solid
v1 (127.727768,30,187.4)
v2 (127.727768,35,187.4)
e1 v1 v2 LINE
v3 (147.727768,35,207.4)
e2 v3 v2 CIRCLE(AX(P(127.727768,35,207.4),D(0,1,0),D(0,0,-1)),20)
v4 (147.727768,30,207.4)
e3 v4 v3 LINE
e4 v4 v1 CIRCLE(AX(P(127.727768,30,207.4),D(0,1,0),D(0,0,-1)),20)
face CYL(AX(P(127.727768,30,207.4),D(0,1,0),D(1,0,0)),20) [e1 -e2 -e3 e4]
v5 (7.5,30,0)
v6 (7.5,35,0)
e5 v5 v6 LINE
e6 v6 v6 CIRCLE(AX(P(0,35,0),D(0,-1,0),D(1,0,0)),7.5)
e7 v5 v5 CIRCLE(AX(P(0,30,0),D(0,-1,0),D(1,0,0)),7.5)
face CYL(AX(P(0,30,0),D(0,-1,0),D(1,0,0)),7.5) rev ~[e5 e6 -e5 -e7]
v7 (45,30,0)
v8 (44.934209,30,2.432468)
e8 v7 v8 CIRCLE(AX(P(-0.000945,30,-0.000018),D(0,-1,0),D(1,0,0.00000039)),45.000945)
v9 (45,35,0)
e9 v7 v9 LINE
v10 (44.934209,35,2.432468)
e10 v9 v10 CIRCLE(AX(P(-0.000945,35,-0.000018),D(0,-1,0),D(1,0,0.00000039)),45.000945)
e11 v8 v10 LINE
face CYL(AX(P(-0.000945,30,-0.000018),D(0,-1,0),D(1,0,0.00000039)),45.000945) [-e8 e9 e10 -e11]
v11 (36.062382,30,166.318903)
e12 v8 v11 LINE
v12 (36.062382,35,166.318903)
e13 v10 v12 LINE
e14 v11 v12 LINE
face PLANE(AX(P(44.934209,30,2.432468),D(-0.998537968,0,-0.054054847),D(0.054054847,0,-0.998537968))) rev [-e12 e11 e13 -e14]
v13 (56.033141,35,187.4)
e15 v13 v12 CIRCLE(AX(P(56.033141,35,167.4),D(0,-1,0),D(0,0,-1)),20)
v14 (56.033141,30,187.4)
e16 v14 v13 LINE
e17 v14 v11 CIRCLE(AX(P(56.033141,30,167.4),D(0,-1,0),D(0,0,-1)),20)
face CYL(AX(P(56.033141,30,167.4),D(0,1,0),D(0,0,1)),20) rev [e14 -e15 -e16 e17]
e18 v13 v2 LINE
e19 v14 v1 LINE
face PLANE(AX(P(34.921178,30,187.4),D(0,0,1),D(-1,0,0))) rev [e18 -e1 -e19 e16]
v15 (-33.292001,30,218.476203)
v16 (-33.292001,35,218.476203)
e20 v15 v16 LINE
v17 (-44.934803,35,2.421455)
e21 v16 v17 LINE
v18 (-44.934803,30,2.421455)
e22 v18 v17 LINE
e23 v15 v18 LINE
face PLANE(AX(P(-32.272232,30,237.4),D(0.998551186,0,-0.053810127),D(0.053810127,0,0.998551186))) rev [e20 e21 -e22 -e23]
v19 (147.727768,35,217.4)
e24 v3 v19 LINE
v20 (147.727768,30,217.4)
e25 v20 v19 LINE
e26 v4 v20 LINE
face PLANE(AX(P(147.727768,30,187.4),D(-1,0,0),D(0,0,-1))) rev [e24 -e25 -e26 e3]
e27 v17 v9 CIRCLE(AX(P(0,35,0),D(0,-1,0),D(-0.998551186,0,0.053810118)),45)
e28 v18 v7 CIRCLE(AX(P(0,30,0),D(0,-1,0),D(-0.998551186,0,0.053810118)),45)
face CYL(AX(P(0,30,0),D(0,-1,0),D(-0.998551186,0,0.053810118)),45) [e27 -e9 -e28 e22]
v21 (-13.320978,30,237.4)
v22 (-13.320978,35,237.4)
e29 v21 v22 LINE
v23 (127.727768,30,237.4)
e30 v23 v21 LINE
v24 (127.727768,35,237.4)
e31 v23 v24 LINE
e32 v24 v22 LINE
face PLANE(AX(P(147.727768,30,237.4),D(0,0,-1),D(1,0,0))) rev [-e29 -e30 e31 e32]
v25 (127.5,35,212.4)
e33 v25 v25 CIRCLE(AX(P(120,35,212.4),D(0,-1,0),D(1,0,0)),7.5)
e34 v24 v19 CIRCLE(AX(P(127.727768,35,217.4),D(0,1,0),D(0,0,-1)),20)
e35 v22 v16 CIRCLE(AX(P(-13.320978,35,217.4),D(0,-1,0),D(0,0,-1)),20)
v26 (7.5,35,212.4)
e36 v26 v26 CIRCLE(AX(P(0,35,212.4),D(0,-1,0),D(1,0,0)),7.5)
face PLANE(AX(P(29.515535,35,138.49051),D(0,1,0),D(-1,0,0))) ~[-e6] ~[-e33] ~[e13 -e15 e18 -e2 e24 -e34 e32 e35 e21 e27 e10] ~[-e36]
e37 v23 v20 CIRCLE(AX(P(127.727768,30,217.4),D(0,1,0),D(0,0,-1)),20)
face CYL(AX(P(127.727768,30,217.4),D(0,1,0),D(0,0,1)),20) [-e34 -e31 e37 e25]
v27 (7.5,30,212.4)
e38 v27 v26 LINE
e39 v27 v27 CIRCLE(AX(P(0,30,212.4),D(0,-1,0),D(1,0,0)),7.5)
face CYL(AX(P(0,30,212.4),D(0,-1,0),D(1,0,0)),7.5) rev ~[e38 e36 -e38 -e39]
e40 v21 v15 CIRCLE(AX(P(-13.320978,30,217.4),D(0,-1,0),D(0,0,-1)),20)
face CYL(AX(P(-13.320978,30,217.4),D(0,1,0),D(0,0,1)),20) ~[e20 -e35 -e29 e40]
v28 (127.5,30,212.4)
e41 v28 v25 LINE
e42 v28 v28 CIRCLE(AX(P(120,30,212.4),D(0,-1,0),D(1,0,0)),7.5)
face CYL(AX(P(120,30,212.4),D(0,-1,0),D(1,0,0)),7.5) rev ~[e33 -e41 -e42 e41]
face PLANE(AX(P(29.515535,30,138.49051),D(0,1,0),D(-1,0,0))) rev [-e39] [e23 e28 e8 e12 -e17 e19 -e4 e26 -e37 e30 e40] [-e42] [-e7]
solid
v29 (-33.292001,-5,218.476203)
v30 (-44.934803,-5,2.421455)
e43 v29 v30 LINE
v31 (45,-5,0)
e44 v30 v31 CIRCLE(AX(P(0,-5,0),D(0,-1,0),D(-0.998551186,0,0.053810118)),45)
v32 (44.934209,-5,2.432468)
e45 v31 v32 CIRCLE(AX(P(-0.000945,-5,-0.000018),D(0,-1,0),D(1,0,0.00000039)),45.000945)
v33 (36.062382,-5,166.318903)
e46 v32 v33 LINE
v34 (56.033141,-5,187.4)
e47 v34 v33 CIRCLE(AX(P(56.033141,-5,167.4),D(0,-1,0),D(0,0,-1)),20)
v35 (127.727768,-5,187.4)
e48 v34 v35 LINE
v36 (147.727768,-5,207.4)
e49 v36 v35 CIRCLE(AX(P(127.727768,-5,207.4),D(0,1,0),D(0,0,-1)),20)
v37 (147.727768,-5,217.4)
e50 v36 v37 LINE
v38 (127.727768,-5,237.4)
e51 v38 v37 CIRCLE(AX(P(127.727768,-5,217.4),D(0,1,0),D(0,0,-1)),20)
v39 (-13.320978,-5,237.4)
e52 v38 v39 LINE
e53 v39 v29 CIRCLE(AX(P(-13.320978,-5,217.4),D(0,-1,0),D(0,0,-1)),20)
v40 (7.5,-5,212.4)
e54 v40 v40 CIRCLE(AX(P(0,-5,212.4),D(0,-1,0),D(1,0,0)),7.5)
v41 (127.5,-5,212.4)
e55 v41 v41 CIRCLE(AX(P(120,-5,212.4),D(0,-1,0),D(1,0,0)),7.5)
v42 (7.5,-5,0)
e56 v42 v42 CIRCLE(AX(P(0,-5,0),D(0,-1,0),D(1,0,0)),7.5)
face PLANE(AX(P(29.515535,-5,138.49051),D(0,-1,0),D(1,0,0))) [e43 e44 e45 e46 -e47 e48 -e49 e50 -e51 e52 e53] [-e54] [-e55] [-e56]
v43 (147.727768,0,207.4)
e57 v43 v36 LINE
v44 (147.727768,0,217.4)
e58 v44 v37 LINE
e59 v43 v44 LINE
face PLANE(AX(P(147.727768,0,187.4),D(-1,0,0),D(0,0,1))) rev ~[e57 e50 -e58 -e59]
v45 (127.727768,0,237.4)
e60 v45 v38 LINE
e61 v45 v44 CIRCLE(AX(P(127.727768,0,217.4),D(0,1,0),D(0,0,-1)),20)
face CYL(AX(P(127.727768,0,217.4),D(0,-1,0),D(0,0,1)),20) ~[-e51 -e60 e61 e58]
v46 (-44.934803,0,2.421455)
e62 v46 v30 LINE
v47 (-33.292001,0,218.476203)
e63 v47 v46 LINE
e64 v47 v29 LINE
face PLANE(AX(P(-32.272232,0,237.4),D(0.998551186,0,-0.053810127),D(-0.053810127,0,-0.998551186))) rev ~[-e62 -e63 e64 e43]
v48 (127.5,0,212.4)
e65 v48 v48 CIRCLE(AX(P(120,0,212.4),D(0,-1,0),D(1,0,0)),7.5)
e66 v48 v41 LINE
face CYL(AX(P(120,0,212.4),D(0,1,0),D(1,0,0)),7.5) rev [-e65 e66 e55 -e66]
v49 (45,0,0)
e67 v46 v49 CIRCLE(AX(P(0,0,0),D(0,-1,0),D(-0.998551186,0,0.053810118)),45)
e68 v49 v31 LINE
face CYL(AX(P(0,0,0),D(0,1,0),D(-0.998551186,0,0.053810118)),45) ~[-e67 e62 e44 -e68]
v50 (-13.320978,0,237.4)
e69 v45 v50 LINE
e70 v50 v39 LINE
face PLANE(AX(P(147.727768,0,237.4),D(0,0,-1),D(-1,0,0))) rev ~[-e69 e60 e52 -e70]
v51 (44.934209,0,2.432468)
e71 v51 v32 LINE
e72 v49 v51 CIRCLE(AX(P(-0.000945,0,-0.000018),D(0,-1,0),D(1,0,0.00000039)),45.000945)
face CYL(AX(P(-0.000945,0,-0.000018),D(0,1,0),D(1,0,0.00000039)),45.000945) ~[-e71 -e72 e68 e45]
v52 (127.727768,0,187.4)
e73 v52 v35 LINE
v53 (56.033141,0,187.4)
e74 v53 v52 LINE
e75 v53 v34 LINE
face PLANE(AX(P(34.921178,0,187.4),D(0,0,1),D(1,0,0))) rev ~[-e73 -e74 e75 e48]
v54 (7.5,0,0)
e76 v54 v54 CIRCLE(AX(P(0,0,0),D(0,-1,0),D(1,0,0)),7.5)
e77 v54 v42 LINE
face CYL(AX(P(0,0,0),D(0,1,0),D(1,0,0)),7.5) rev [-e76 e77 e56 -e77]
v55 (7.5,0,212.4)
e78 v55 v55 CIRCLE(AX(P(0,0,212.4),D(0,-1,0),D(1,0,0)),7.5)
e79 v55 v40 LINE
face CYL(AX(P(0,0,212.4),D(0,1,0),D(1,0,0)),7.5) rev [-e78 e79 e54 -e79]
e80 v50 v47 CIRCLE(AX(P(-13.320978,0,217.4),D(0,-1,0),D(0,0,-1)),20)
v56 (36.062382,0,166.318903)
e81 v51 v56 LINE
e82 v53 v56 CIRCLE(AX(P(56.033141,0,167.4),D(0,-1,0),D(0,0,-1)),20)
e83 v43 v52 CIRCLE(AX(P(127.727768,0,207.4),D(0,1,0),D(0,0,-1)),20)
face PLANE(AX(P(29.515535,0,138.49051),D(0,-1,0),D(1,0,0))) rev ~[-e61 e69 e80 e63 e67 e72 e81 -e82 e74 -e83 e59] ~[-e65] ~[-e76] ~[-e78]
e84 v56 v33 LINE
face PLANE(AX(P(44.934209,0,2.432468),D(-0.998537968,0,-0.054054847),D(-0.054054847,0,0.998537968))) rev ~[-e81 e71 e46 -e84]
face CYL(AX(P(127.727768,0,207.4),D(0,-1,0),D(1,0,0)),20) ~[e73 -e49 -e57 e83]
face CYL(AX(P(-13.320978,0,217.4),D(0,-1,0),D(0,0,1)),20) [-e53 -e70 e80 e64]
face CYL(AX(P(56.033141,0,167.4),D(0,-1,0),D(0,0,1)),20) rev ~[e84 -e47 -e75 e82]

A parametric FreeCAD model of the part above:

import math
import FreeCAD as App
import Part
import Sketcher
from FreeCAD import Vector
Q = App.Units.Quantity


def edges_at(feature, points):
    """Names of the edges that pass closest to the given points."""
    edges = feature.Shape.Edges
    near = lambda p: min(range(len(edges)), key=lambda i: edges[i].distToShape(Part.Vertex(*p))[0])
    return sorted({f"Edge{near(p) + 1}" for p in points})

doc = App.newDocument("Part")
body = doc.addObject("PartDesign::Body", "Body")

sketch1 = body.newObject("Sketcher::SketchObject", "Sketch")
sketch1.AttachmentSupport = (doc.getObject("XZ_Plane"), [""])
sketch1.MapMode = "FlatFace"
sketch1.addGeometry([
    Part.LineSegment(Vector(-32.272232, 237.4, 0), Vector(-44.934803, 2.421455, 0)),
    Part.ArcOfCircle(Part.Circle(Vector(0, 0, 0), Vector(0, 0, 1), 45), math.radians(176.915418), math.radians(360)),
    Part.ArcOfCircle(Part.Circle(Vector(-0.000945, -0.000018, 0), Vector(0, 0, 1), 45.000945), math.radians(0.000022), math.radians(3.098582)),
    Part.LineSegment(Vector(44.934209, 2.432468, 0), Vector(34.921178, 187.4, 0)),
    Part.LineSegment(Vector(34.921178, 187.4, 0), Vector(147.727768, 187.4, 0)),
    Part.LineSegment(Vector(147.727768, 187.4, 0), Vector(147.727768, 237.4, 0)),
    Part.LineSegment(Vector(147.727768, 237.4, 0), Vector(-32.272232, 237.4, 0)),
    Part.Circle(Vector(0, 0, 0), Vector(0, 0, 1), 7.5),
    Part.Circle(Vector(0, 212.4, 0), Vector(0, 0, 1), 7.5),
    Part.Circle(Vector(120, 212.4, 0), Vector(0, 0, 1), 7.5),
], False)
sketch1.addConstraint([
    Sketcher.Constraint("Coincident", 0, 2, 1, 1),
    Sketcher.Constraint("Coincident", 1, 2, 2, 1),
    Sketcher.Constraint("Coincident", 2, 2, 3, 1),
    Sketcher.Constraint("Coincident", 3, 2, 4, 1),
    Sketcher.Constraint("Coincident", 4, 2, 5, 1),
    Sketcher.Constraint("Coincident", 5, 2, 6, 1),
    Sketcher.Constraint("Coincident", 6, 2, 0, 1),
    Sketcher.Constraint("Horizontal", 4),
    Sketcher.Constraint("Vertical", 5),
    Sketcher.Constraint("Horizontal", 6),
    Sketcher.Constraint("Coincident", 1, 3, -1, 1),
    Sketcher.Constraint("Coincident", 7, 3, -1, 1),
    Sketcher.Constraint("PointOnObject", 8, 3, -2),
    Sketcher.Constraint("PointOnObject", 1, 2, -1),
    Sketcher.Constraint("Diameter", 7, Q("15 mm")),
    Sketcher.Constraint("Diameter", 8, Q("15 mm")),
    Sketcher.Constraint("Diameter", 9, Q("15 mm")),
    Sketcher.Constraint("Radius", 1, Q("45 mm")),
    Sketcher.Constraint("DistanceX", 6, 2, 6, 1, Q("180 mm")),
    Sketcher.Constraint("DistanceY", 5, 1, 5, 2, Q("50 mm")),
    Sketcher.Constraint("DistanceX", -1, 1, 9, 3, Q("120 mm")),
    Sketcher.Constraint("DistanceY", 3, 2, 8, 3, Q("25 mm")),
    Sketcher.Constraint("DistanceY", 3, 2, 9, 3, Q("25 mm")),
    Sketcher.Constraint("DistanceY", -1, 1, 8, 3, Q("212.4 mm")),
    Sketcher.Constraint("Radius", 2, Q("45.000945 mm")),
    Sketcher.Constraint("DistanceX", 4, 1, 4, 2, Q("112.80659 mm")),
    Sketcher.Constraint("Distance", 0, Q("235.319479 mm")),
    Sketcher.Constraint("DistanceX", -1, 1, 2, 2, Q("44.934209 mm")),
    Sketcher.Constraint("DistanceX", -1, 1, 4, 2, Q("147.727768 mm")),
    Sketcher.Constraint("DistanceY", 1, 3, 2, 2, Q("2.432468 mm")),
])
pad1 = body.newObject("PartDesign::Pad", "Pad")
pad1.Profile = sketch1
pad1.Length = 5
doc.recompute()

fillet = body.newObject("PartDesign::Fillet", "Fillet")
fillet.Base = (pad1, edges_at(pad1, [(147.728, -2.5, 237.4)]))
fillet.Radius = 20
doc.recompute()

fillet2 = body.newObject("PartDesign::Fillet", "Fillet001")
fillet2.Base = (fillet, edges_at(fillet, [(147.728, -2.5, 187.4)]))
fillet2.Radius = 20
doc.recompute()

fillet3 = body.newObject("PartDesign::Fillet", "Fillet002")
fillet3.Base = (fillet2, edges_at(fillet2, [(-32.272, -2.5, 237.4)]))
fillet3.Radius = 20
doc.recompute()

fillet4 = body.newObject("PartDesign::Fillet", "Fillet003")
fillet4.Base = (fillet3, edges_at(fillet3, [(34.921, -2.5, 187.4)]))
fillet4.Radius = 20
body2 = doc.addObject("PartDesign::Body", "Body001")
doc.recompute()

mirroring = doc.addObject("Part::Mirroring", "Mirroring")
mirroring.Source = body
mirroring.Base = Vector(0, 15, 0)
mirroring.Normal = Vector(0, -1, 0)
body2.BaseFeature = mirroring
doc.recompute()
mirroring.Visibility = False

doc.recompute()
